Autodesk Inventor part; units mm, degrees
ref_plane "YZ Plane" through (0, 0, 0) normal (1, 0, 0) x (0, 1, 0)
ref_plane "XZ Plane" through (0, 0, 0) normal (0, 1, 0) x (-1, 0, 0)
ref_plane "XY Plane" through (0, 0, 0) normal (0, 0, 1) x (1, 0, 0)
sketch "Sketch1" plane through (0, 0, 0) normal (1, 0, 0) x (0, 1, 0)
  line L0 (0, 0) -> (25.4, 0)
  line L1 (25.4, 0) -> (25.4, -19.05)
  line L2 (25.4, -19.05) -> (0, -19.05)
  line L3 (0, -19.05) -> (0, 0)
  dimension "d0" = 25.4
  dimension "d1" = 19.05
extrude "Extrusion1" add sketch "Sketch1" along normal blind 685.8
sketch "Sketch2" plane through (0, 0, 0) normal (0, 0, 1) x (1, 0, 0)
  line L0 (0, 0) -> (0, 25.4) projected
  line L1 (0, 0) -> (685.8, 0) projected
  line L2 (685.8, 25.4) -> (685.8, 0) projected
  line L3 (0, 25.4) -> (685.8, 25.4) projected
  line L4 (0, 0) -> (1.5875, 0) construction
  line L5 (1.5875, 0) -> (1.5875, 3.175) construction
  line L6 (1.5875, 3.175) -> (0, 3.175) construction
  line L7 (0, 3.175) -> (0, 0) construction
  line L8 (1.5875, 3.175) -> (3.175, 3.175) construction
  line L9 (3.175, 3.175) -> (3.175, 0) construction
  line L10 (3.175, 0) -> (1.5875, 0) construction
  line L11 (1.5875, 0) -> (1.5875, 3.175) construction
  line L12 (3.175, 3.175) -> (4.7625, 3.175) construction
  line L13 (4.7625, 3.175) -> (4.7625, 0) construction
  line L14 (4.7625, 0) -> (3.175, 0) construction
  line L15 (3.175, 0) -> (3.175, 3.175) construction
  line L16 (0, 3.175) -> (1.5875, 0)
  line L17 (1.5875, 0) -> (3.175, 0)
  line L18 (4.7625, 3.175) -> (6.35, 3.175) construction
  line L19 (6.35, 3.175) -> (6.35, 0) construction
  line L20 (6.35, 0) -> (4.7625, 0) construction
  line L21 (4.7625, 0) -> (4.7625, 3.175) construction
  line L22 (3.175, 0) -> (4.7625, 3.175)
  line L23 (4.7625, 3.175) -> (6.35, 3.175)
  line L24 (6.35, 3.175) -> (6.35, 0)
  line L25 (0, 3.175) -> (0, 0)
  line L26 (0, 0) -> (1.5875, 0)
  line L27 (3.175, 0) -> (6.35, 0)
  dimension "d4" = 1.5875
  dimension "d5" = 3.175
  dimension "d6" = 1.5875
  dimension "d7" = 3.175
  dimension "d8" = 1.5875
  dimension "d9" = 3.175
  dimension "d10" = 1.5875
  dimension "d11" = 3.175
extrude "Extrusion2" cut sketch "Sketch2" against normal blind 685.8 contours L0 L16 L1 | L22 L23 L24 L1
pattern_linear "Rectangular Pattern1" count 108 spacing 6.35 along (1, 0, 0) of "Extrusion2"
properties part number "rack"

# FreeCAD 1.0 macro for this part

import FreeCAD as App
import Part
import Sketcher

V = App.Vector
Q = App.Units.Quantity


def add_polygon(sketch, points):
    """Adds a closed chain of lines whose ends are joined by coincident constraints."""
    first, n = sketch.GeometryCount, len(points)
    for a, b in zip(points, points[1:] + points[:1]):
        sketch.addGeometry(Part.LineSegment(App.Vector(*a, 0), App.Vector(*b, 0)), False)
    for i in range(n):
        sketch.addConstraint(Sketcher.Constraint("Coincident", first + i, 2, first + (i + 1) % n, 1))

doc = App.newDocument("Part")
body = doc.addObject("PartDesign::Body", "Body")

# Sketch on YZ plane
sketch1 = doc.addObject("Sketcher::SketchObject", "Sketch")
body.addObject(sketch1)
sketch1.AttachmentSupport = (doc.YZ_Plane, [""])
sketch1.MapMode = "FlatFace"
add_polygon(sketch1, [(25, 0), (0, 0), (0, -19), (25, -19)])  # lines 0-3
sketch1.addConstraint([
    Sketcher.Constraint("Horizontal", 0),
    Sketcher.Constraint("Vertical", 1),
    Sketcher.Constraint("Horizontal", 2),
    Sketcher.Constraint("Vertical", 3),
    Sketcher.Constraint("Coincident", 0, 2, -1, 1),
    Sketcher.Constraint("DistanceX", 0, 2, 0, 1, Q("1 in")),
    Sketcher.Constraint("DistanceY", 1, 2, 1, 1, Q("0.75 in")),
])
pad1 = doc.addObject("PartDesign::Pad", "Pad")
body.addObject(pad1)
pad1.Profile = sketch1
pad1.Length = Q("27 in")

# Sketch on XY plane
sketch2 = doc.addObject("Sketcher::SketchObject", "Sketch001")
body.addObject(sketch2)
sketch2.AttachmentSupport = (doc.XY_Plane, [""])
sketch2.MapMode = "FlatFace"
add_polygon(sketch2, [(0, 3.2), (0, 0), (1.6, 0)])  # lines 0-2
add_polygon(sketch2, [(4.8, 3.2), (3.2, 0), (6.3, 0), (6.3, 3.2)])  # lines 3-6
sketch2.addConstraint([
    Sketcher.Constraint("Vertical", 0),
    Sketcher.Constraint("Horizontal", 1),
    Sketcher.Constraint("Horizontal", 4),
    Sketcher.Constraint("Vertical", 5),
    Sketcher.Constraint("Horizontal", 6),
    Sketcher.Constraint("Coincident", 0, 2, -1, 1),
    Sketcher.Constraint("PointOnObject", 3, 2, -1),
    Sketcher.Constraint("Horizontal", 2, 2, 5, 2),
    Sketcher.Constraint("Equal", 1, 6),
    Sketcher.Constraint("Equal", 4, 0),
    Sketcher.Constraint("Equal", 2, 3),
    Sketcher.Constraint("DistanceX", 1, 1, 1, 2, Q("0.0625 in")),
    Sketcher.Constraint("DistanceX", -1, 1, 3, 2, Q("0.125 in")),
])
pocket1 = doc.addObject("PartDesign::Pocket", "Pocket")
body.addObject(pocket1)
pocket1.Profile = sketch2
pocket1.Length = Q("27 in")
doc.recompute()

linearpattern = doc.addObject("PartDesign::LinearPattern", "LinearPattern")
body.addObject(linearpattern)
linearpattern.Originals = [pocket1]
linearpattern.Direction = (doc.X_Axis, [""])
linearpattern.Mode = "offset"
linearpattern.Offset = Q("0.25 in")
linearpattern.Occurrences = 108
body.Tip = linearpattern

doc.recompute()
